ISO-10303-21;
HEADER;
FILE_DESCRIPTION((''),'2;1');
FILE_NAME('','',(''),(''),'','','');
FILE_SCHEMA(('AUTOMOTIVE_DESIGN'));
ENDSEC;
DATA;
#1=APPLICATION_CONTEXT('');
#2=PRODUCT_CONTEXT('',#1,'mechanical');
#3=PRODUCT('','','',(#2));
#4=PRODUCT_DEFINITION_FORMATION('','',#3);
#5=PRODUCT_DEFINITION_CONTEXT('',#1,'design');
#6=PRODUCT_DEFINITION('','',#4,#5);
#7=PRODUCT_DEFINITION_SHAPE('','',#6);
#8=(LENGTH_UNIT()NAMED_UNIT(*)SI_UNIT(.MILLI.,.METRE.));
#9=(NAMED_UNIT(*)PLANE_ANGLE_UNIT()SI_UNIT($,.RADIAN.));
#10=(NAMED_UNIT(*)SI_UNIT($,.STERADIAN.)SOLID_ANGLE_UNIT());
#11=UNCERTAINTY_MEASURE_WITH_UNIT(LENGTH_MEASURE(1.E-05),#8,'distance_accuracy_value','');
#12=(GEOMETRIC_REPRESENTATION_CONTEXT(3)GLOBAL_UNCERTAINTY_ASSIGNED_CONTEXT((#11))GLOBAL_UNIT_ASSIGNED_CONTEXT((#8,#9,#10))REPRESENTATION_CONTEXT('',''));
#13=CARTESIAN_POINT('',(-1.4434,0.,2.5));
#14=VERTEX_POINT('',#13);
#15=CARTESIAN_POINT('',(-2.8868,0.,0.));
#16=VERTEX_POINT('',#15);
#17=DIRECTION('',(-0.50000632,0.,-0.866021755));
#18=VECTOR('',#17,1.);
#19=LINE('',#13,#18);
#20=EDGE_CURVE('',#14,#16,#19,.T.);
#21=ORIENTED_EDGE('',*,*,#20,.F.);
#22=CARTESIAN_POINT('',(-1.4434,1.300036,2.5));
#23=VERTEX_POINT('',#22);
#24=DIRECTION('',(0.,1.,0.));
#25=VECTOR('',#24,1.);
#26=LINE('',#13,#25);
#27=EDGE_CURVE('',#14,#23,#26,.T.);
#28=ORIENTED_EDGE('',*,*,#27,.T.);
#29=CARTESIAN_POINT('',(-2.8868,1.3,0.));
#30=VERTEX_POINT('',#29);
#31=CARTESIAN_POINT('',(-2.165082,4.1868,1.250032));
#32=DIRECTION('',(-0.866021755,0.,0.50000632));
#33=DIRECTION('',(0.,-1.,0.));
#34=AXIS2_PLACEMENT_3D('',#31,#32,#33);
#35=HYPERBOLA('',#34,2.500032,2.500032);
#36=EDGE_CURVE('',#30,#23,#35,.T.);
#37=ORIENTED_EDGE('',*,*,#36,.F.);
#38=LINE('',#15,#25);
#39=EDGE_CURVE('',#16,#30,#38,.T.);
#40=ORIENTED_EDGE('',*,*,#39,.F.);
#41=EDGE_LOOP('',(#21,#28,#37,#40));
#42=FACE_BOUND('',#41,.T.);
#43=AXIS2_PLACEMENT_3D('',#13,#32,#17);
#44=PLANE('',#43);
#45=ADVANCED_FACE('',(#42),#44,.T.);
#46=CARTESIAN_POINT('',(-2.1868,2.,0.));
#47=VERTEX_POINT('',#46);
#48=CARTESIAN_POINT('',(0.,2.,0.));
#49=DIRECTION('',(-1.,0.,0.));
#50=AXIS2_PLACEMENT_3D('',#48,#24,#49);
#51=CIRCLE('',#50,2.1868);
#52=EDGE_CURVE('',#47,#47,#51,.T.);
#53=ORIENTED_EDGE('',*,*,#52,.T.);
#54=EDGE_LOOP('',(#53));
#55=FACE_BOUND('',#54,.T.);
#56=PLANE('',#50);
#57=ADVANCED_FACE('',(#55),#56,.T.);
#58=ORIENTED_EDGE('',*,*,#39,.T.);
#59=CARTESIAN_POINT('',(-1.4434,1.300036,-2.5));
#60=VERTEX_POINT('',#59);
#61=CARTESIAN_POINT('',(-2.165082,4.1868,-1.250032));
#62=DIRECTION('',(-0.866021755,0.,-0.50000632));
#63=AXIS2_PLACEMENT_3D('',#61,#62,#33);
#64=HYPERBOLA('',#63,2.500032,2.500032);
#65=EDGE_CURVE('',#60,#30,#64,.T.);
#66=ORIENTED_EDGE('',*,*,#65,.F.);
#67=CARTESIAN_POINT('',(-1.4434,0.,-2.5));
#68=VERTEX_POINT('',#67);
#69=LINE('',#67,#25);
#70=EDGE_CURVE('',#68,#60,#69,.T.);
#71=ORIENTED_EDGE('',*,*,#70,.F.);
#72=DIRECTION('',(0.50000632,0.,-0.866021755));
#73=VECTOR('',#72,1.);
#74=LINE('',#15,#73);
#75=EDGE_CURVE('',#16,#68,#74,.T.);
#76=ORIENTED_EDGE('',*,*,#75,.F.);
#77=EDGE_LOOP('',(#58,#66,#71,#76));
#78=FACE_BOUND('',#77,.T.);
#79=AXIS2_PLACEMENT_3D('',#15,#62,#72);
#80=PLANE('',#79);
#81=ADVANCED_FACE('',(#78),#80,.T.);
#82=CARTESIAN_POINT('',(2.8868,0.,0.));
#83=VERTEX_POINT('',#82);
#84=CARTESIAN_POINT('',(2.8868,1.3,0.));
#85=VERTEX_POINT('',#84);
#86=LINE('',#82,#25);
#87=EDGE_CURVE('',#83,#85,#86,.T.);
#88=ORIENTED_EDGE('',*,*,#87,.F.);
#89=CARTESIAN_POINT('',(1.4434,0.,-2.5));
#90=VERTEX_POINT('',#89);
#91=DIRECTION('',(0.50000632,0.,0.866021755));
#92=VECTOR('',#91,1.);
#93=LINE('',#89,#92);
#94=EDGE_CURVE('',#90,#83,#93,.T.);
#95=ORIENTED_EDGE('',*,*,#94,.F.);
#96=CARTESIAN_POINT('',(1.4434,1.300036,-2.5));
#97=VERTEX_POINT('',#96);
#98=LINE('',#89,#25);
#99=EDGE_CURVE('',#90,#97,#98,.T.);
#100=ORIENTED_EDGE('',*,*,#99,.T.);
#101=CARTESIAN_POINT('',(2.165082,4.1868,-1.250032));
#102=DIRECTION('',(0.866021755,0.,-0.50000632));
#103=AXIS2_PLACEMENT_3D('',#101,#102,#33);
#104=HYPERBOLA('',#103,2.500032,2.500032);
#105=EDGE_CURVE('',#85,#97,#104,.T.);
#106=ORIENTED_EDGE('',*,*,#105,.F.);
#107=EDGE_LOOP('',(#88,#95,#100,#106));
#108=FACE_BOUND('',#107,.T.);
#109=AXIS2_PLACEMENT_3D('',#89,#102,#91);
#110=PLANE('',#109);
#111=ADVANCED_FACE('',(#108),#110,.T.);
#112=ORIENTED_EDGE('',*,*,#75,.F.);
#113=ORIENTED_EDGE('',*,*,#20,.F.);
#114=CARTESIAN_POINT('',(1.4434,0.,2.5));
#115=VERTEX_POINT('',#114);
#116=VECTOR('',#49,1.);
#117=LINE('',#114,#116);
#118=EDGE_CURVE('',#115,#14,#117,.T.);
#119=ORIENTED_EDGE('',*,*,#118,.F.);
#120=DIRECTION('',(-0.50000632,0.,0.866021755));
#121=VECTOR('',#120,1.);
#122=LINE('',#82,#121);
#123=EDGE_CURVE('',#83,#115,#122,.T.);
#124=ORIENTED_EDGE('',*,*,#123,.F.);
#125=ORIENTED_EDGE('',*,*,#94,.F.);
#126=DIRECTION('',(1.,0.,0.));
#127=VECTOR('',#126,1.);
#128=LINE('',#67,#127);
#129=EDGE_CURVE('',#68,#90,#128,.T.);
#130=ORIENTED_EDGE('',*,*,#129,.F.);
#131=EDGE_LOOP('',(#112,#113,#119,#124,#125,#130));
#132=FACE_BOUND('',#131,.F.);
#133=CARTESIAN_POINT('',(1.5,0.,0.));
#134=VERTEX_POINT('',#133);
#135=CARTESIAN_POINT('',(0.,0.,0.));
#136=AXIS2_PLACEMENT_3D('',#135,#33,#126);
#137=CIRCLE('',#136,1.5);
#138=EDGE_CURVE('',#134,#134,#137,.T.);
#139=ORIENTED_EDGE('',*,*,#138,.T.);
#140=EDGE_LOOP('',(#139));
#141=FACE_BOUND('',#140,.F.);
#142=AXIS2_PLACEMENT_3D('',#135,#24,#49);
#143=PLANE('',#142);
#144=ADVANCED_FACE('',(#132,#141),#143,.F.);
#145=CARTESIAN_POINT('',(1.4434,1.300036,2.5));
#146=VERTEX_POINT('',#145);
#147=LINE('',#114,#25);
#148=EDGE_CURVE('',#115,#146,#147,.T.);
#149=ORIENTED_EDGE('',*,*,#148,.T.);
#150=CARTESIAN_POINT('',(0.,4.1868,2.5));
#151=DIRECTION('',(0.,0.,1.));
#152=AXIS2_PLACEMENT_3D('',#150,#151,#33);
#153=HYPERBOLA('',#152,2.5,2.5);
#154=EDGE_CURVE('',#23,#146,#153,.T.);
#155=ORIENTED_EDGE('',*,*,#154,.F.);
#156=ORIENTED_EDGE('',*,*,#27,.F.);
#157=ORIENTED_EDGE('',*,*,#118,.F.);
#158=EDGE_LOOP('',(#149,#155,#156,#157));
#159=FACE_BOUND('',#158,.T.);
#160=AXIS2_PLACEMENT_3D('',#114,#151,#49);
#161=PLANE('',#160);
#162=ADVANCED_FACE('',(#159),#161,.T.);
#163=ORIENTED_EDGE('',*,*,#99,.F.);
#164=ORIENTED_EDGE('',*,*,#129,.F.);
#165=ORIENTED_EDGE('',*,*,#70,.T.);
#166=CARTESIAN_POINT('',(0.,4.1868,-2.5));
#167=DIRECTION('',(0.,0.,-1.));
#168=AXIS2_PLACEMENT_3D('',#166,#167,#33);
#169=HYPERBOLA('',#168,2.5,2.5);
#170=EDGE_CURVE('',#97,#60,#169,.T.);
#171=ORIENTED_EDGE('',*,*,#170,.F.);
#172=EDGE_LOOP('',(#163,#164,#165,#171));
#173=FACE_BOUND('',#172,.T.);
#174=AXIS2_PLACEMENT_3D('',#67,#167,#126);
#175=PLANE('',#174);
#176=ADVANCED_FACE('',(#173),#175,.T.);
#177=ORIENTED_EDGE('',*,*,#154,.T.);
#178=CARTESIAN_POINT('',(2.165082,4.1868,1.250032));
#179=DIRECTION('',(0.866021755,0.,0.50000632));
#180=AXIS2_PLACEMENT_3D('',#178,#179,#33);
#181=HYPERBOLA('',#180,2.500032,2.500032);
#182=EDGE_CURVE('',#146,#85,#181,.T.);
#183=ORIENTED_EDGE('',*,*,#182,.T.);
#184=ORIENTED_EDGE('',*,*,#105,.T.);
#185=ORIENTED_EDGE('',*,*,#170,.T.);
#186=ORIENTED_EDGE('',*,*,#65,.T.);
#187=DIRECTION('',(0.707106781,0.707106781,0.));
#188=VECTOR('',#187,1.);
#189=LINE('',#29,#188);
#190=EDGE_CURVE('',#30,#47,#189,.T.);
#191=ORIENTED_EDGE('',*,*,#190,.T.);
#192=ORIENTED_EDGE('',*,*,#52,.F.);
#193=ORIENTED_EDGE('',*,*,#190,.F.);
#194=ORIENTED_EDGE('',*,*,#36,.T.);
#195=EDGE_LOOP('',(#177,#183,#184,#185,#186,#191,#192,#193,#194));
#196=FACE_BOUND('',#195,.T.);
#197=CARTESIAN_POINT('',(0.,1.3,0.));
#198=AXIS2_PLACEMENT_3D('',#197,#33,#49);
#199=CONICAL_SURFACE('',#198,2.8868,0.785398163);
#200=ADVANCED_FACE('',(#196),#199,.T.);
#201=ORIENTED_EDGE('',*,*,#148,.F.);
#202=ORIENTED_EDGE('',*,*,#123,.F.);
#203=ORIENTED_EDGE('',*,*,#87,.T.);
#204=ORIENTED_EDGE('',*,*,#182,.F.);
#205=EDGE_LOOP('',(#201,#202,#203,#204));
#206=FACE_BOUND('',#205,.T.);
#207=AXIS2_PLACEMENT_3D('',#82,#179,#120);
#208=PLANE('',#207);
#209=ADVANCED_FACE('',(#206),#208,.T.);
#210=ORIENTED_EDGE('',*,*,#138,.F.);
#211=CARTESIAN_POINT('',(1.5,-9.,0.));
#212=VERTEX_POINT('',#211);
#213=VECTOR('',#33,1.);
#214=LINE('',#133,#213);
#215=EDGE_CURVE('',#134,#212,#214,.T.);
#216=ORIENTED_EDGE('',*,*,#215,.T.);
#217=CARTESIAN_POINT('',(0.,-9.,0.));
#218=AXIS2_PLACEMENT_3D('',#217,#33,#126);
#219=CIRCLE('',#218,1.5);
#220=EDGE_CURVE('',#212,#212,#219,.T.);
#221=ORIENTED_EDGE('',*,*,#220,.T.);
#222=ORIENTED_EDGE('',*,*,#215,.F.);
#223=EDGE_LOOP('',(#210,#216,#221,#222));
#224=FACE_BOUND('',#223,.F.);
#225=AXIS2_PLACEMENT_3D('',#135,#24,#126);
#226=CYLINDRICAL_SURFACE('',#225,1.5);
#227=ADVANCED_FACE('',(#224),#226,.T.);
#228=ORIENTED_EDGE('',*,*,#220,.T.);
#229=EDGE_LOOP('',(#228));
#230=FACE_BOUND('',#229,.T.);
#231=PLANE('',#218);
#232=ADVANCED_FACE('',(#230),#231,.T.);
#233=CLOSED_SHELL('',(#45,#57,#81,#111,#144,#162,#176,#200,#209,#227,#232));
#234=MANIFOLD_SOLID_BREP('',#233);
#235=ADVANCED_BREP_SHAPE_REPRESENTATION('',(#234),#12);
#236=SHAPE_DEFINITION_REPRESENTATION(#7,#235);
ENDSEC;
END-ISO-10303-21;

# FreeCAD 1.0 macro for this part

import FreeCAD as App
import Part
import Sketcher
Q = App.Units.Quantity

doc = App.newDocument("Part")
params = doc.addObject("Spreadsheet::Sheet", "Params")
for row, (alias, value) in enumerate([
    ("pad1_length", "2 mm"),
    ("sketch2_diameter", "3 mm"),
    ("pad2_length", "9 mm"),
    ("sketch3_width", "0.7 mm"),
    ("groove_angle", "360 deg"),
], start=1):
    params.set(f"A{row}", alias)
    params.set(f"B{row}", "=" + value)
    params.setAlias(f"B{row}", alias)

body = doc.addObject("PartDesign::Body", "Body")

sketch1 = doc.addObject("Sketcher::SketchObject", "Sketch")
body.addObject(sketch1)
sketch1.AttachmentSupport = (doc.XZ_Plane, [""])
sketch1.MapMode = "FlatFace"
sketch1.addGeometry(Part.LineSegment(App.Vector(1.4, -2.5, 0), App.Vector(-1.4, -2.5, 0)), False)
sketch1.addGeometry(Part.LineSegment(App.Vector(-1.4, -2.5, 0), App.Vector(-2.9, 0, 0)), False)
sketch1.addGeometry(Part.LineSegment(App.Vector(-2.9, 0, 0), App.Vector(-1.4, 2.5, 0)), False)
sketch1.addGeometry(Part.LineSegment(App.Vector(-1.4, 2.5, 0), App.Vector(1.4, 2.5, 0)), False)
sketch1.addGeometry(Part.LineSegment(App.Vector(1.4, 2.5, 0), App.Vector(2.9, 0, 0)), False)
sketch1.addGeometry(Part.LineSegment(App.Vector(2.9, 0, 0), App.Vector(1.4, -2.5, 0)), False)
sketch1.addConstraint(Sketcher.Constraint("Coincident", 0, 2, 1, 1))
sketch1.addConstraint(Sketcher.Constraint("Coincident", 1, 2, 2, 1))
sketch1.addConstraint(Sketcher.Constraint("Coincident", 2, 2, 3, 1))
sketch1.addConstraint(Sketcher.Constraint("Coincident", 3, 2, 4, 1))
sketch1.addConstraint(Sketcher.Constraint("Coincident", 4, 2, 5, 1))
sketch1.addConstraint(Sketcher.Constraint("Coincident", 5, 2, 0, 1))
sketch1.addConstraint(Sketcher.Constraint("Horizontal", 0))
sketch1.addConstraint(Sketcher.Constraint("Horizontal", 3))
sketch1.addConstraint(Sketcher.Constraint("Symmetric", 0, 2, 3, 2, -1, 1))
sketch1.addConstraint(Sketcher.Constraint("Symmetric", 1, 2, 4, 2, -1, 1))
sketch1.addConstraint(Sketcher.Constraint("PointOnObject", 1, 2, -1))
sketch1.addConstraint(Sketcher.Constraint("Parallel", 2, 5))
sketch1.addConstraint(Sketcher.Constraint("Vertical", 0, 2, 2, 2))
sketch1.addConstraint(Sketcher.Constraint("DistanceY", 0, 2, 2, 2, 5.0))
sketch1.addConstraint(Sketcher.Constraint("Angle", 1, Q("120.0004 deg")))
sketch1.addConstraint(Sketcher.Constraint("DistanceX", 0, 2, 0, 1, 2.8868))
pad1 = doc.addObject("PartDesign::Pad", "Pad")
body.addObject(pad1)
pad1.Profile = sketch1
pad1.setExpression("Length", "Params.pad1_length")
pad1.Reversed = True

sketch2 = doc.addObject("Sketcher::SketchObject", "Sketch001")
body.addObject(sketch2)
sketch2.AttachmentSupport = (doc.XZ_Plane, [""])
sketch2.MapMode = "FlatFace"
sketch2.addGeometry(Part.Circle(App.Vector(0, 0, 0), App.Vector(0, 0, 1), 1.5), False)
sketch2.addConstraint(Sketcher.Constraint("Coincident", 0, 3, -1, 1))
sketch2.addConstraint(Sketcher.Constraint("Diameter", 0, 3.0))
sketch2.setExpression("Constraints[1]", "Params.sketch2_diameter")
pad2 = doc.addObject("PartDesign::Pad", "Pad001")
body.addObject(pad2)
pad2.Profile = sketch2
pad2.setExpression("Length", "Params.pad2_length")

sketch3 = doc.addObject("Sketcher::SketchObject", "Sketch002")
body.addObject(sketch3)
sketch3.AttachmentSupport = (doc.XY_Plane, [""])
sketch3.MapMode = "FlatFace"
sketch3.addGeometry(Part.LineSegment(App.Vector(-2.9, 2, 0), App.Vector(-2.9, 1.3, 0)), False)
sketch3.addGeometry(Part.LineSegment(App.Vector(-2.9, 1.3, 0), App.Vector(-2.2, 2, 0)), False)
sketch3.addGeometry(Part.LineSegment(App.Vector(-2.2, 2, 0), App.Vector(-2.9, 2, 0)), False)
sketch3.addConstraint(Sketcher.Constraint("Coincident", 0, 2, 1, 1))
sketch3.addConstraint(Sketcher.Constraint("Coincident", 1, 2, 2, 1))
sketch3.addConstraint(Sketcher.Constraint("Coincident", 2, 2, 0, 1))
sketch3.addConstraint(Sketcher.Constraint("Vertical", 0))
sketch3.addConstraint(Sketcher.Constraint("Horizontal", 2))
sketch3.addConstraint(Sketcher.Constraint("Equal", 2, 0))
sketch3.addConstraint(Sketcher.Constraint("DistanceX", 2, 2, 2, 1, 0.7))
sketch3.addConstraint(Sketcher.Constraint("DistanceY", -1, 1, 1, 2, 2.0))
sketch3.addConstraint(Sketcher.Constraint("DistanceX", 0, 2, -1, 1, 2.8868))
sketch3.setExpression("Constraints[6]", "Params.sketch3_width")
groove = doc.addObject("PartDesign::Groove", "Groove")
body.addObject(groove)
groove.Profile = sketch3
groove.ReferenceAxis = (sketch3, ["V_Axis"])
groove.setExpression("Angle", "Params.groove_angle")

doc.recompute()
